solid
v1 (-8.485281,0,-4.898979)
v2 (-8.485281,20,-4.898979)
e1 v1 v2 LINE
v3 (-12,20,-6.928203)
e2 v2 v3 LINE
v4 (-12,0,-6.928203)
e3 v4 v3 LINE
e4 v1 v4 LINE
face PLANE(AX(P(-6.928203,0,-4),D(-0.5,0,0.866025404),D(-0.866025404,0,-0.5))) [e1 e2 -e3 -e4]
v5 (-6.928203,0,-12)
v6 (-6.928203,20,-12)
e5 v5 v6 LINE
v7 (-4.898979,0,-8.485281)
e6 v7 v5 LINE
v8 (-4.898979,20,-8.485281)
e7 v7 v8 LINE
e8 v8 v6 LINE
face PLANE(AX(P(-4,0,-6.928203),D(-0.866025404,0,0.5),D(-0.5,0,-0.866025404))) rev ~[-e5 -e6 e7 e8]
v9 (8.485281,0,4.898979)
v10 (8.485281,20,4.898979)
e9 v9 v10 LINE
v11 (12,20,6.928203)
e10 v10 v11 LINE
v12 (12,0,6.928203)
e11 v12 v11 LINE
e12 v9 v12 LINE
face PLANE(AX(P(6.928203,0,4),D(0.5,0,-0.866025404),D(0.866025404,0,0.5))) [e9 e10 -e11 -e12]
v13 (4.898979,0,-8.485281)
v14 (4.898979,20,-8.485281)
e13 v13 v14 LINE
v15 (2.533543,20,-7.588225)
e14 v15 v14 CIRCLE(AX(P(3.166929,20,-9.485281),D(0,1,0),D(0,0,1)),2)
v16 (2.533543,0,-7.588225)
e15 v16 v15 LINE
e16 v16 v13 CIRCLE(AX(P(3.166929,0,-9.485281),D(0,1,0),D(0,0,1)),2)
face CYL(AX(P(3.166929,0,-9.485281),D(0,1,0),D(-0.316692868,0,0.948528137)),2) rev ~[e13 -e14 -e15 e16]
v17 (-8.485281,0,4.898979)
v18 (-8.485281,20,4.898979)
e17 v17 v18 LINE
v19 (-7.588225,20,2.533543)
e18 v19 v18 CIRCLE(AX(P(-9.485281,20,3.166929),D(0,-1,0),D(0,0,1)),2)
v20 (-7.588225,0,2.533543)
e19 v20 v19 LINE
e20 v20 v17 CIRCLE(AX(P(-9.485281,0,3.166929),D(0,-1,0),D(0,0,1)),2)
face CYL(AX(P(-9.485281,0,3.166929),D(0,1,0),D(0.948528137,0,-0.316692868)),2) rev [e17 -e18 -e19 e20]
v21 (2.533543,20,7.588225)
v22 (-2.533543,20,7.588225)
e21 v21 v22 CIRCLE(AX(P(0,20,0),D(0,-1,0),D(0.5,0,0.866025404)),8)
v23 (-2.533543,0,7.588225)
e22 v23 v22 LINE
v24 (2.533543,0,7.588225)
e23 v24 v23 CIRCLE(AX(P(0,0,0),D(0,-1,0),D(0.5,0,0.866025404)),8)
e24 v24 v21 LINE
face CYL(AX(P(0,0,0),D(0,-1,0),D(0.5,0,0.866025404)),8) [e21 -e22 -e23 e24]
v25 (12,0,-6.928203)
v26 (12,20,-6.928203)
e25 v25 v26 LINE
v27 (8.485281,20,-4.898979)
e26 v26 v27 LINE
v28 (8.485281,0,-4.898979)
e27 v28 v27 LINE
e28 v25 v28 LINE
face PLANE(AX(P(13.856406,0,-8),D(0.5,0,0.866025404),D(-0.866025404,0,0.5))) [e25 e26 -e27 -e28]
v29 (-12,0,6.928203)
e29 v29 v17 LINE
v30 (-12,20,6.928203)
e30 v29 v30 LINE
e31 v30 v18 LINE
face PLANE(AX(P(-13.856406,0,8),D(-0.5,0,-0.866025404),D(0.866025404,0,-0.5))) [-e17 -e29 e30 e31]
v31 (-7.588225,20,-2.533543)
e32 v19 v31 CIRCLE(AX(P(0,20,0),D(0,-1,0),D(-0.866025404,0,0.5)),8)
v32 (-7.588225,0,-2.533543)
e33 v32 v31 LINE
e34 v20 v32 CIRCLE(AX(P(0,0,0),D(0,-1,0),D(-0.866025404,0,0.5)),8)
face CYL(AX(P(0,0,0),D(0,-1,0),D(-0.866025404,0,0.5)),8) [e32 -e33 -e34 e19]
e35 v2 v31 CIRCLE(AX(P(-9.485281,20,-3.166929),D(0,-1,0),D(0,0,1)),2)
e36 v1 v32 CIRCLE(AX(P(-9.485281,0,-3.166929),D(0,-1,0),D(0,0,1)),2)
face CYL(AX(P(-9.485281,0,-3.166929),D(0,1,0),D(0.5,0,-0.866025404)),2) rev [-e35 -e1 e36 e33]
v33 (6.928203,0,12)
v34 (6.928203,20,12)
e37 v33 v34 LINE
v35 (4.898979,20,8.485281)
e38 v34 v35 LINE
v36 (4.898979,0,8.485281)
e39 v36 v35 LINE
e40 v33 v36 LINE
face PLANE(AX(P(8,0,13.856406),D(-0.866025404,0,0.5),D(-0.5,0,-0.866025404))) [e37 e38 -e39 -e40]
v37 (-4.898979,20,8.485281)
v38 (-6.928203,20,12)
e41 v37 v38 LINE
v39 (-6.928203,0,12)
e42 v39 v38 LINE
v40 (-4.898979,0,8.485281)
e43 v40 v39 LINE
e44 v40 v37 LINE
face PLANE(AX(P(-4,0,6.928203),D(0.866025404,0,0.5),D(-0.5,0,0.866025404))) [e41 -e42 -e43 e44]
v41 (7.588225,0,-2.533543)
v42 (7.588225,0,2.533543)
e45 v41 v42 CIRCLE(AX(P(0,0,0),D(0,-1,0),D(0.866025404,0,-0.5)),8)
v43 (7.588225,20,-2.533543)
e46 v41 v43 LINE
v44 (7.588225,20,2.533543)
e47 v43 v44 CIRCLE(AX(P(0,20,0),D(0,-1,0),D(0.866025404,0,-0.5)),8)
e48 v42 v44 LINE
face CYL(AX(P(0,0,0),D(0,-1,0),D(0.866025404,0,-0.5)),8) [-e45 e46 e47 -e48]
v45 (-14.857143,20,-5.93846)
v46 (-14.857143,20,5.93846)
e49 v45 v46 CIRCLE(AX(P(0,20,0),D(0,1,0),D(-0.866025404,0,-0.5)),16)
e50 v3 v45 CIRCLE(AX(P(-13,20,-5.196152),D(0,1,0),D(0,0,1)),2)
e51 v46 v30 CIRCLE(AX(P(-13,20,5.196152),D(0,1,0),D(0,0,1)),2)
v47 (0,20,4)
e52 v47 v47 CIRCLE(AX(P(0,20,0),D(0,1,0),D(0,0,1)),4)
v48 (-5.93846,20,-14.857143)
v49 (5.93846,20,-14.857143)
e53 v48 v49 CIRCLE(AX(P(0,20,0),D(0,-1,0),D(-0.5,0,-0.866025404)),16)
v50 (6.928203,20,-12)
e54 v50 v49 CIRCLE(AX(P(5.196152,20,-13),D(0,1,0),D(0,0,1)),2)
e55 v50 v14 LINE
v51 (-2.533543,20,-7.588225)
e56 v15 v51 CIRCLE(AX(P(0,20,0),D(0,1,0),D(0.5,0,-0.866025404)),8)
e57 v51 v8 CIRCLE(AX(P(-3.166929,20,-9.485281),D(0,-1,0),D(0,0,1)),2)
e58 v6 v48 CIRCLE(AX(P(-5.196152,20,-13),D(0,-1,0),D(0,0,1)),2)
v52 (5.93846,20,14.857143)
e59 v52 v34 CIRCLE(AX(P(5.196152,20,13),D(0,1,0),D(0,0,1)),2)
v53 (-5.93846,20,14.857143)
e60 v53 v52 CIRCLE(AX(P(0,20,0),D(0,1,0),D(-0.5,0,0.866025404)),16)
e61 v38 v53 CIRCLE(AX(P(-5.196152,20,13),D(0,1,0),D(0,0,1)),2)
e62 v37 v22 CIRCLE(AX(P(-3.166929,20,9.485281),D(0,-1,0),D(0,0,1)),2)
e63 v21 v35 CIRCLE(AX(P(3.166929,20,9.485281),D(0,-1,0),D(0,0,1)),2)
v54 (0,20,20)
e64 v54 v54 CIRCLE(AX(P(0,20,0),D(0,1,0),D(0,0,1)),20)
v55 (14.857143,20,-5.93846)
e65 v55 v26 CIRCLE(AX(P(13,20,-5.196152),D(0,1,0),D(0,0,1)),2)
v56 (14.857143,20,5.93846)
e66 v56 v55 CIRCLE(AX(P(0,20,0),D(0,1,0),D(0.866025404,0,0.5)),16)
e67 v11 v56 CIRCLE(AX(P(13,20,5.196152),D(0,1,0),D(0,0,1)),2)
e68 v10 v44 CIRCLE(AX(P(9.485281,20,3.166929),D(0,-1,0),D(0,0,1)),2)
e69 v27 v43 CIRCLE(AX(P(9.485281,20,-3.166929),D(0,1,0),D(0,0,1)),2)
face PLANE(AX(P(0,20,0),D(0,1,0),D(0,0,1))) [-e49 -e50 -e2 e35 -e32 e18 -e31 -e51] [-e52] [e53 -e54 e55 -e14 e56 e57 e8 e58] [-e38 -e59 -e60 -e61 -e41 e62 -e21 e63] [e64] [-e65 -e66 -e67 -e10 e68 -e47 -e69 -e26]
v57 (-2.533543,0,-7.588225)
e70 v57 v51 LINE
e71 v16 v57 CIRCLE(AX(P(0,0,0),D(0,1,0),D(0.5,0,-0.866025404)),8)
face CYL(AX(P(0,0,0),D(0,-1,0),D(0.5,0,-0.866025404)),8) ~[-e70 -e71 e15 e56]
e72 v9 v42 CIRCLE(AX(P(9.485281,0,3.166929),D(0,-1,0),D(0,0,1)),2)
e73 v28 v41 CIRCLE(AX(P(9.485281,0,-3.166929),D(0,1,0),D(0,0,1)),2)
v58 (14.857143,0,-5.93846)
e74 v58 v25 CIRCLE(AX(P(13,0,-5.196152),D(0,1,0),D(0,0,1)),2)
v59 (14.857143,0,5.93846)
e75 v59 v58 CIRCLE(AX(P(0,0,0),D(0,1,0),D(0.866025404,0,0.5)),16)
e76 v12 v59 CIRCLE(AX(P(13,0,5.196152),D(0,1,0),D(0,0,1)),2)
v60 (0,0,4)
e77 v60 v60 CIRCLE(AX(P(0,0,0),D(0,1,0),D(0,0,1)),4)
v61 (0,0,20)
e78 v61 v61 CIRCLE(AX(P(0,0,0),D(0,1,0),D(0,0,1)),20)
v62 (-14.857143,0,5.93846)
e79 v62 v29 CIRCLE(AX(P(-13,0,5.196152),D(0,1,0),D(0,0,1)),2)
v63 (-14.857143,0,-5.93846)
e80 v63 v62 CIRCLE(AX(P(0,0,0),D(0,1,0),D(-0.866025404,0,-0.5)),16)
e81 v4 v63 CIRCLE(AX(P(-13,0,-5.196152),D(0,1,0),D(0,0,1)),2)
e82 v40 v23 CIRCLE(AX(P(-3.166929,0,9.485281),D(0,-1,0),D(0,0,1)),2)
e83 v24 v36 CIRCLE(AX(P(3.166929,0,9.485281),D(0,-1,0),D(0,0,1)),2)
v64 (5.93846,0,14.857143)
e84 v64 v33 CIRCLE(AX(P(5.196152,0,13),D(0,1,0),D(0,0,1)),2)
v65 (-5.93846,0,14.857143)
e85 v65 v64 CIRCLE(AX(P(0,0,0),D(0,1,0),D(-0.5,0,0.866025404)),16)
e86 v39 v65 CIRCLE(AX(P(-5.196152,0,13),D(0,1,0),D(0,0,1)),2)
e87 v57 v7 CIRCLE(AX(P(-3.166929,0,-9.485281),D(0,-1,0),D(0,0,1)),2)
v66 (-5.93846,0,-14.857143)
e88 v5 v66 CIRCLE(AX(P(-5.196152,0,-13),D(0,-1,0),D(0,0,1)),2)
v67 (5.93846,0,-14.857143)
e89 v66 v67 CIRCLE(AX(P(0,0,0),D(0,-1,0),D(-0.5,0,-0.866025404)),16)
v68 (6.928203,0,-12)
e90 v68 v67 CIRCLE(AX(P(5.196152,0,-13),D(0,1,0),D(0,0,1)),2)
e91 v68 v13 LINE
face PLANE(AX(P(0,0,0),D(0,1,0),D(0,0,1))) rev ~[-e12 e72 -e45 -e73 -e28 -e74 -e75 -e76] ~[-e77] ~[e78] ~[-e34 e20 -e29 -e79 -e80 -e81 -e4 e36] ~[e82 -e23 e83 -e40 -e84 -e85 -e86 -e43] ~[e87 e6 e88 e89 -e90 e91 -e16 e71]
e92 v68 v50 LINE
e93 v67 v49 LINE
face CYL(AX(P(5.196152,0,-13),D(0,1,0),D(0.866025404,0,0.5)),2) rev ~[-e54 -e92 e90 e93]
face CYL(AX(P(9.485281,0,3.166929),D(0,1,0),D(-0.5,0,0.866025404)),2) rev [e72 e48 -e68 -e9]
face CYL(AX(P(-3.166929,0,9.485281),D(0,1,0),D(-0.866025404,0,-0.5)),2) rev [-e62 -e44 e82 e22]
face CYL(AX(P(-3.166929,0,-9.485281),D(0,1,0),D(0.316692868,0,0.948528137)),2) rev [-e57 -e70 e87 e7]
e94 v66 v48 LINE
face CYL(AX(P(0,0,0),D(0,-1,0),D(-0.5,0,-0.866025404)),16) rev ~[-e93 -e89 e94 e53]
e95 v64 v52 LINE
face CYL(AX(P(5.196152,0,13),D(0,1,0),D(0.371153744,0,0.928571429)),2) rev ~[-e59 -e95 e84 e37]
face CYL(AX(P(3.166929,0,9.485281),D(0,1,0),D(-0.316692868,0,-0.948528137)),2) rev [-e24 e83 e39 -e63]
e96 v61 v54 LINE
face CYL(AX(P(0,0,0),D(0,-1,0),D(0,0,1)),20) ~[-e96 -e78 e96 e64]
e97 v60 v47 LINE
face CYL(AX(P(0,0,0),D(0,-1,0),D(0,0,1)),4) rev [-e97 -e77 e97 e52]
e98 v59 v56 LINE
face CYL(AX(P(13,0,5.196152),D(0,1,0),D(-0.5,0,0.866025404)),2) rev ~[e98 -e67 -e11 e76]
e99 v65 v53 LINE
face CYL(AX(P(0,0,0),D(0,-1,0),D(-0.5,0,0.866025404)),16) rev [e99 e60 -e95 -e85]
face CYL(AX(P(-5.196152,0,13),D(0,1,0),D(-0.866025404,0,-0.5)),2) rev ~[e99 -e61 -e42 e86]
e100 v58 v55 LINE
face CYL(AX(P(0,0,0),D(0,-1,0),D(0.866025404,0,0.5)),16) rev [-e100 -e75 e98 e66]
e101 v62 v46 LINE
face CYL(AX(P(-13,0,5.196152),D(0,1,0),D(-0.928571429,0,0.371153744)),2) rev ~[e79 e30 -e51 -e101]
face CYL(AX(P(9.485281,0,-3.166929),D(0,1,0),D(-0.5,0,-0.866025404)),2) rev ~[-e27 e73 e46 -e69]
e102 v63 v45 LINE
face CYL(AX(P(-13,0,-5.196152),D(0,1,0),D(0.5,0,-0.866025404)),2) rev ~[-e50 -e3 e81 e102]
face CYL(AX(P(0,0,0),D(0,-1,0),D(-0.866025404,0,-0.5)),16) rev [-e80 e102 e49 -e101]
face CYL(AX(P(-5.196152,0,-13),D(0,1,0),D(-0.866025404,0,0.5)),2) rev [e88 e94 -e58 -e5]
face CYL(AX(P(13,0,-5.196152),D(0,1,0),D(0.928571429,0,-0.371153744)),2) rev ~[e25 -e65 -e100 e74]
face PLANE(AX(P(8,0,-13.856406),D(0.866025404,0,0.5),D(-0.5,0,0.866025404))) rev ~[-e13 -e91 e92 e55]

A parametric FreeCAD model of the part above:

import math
import FreeCAD as App
import Part
import Sketcher

V = App.Vector
Q = App.Units.Quantity


def edges_at(feature, points):
    """Names of the edges that pass closest to the given points."""
    edges = feature.Shape.Edges
    near = lambda p: min(range(len(edges)), key=lambda i: edges[i].distToShape(Part.Vertex(*p))[0])
    return sorted({f"Edge{near(p) + 1}" for p in points})

doc = App.newDocument("Part")
body = doc.addObject("PartDesign::Body", "Body")

# Sketch on XZ plane
sketch1 = doc.addObject("Sketcher::SketchObject", "Sketch")
body.addObject(sketch1)
sketch1.AttachmentSupport = (doc.XZ_Plane, [""])
sketch1.MapMode = "FlatFace"
sketch1.addGeometry([
    Part.Circle(V(0, 0, 0), V(0, 0, 1), 20),  # 0
    Part.LineSegment(V(-13.9, -8, 0), V(-6.9, -4, 0)),  # 1
    Part.ArcOfCircle(Part.Circle(V(0, 0, 0), V(0, 0, 1), 8), math.radians(150), math.radians(210)),  # 2
    Part.LineSegment(V(-6.9, 4, 0), V(-13.9, 8, 0)),  # 3
    Part.ArcOfCircle(Part.Circle(V(0, 0, 0), V(0, 0, 1), 16), math.radians(150), math.radians(210)),  # 4
    Part.ArcOfCircle(Part.Circle(V(0, 0, 0), V(0, 0, 1), 8), math.radians(-120), math.radians(-60)),  # 5
    Part.LineSegment(V(-4, -6.9, 0), V(-8, -13.9, 0)),  # 6
    Part.ArcOfCircle(Part.Circle(V(0, 0, 0), V(0, 0, 1), 16), math.radians(-120), math.radians(-60)),  # 7
    Part.LineSegment(V(8, -13.9, 0), V(4, -6.9, 0)),  # 8
    Part.LineSegment(V(13.9, 8, 0), V(6.9, 4, 0)),  # 9
    Part.ArcOfCircle(Part.Circle(V(0, 0, 0), V(0, 0, 1), 8), math.radians(-30), math.radians(30)),  # 10
    Part.LineSegment(V(6.9, -4, 0), V(13.9, -8, 0)),  # 11
    Part.ArcOfCircle(Part.Circle(V(0, 0, 0), V(0, 0, 1), 16), math.radians(-30), math.radians(30)),  # 12
    Part.Circle(V(0, 0, 0), V(0, 0, 1), 4),  # 13
    Part.LineSegment(V(-8, 13.9, 0), V(-4, 6.9, 0)),  # 14
    Part.ArcOfCircle(Part.Circle(V(0, 0, 0), V(0, 0, 1), 8), math.radians(60), math.radians(120)),  # 15
    Part.LineSegment(V(4, 6.9, 0), V(8, 13.9, 0)),  # 16
    Part.ArcOfCircle(Part.Circle(V(0, 0, 0), V(0, 0, 1), 16), math.radians(60), math.radians(120)),  # 17
], False)
sketch1.addConstraint([
    Sketcher.Constraint("Coincident", 1, 2, 2, 2),
    Sketcher.Constraint("Coincident", 2, 1, 3, 1),
    Sketcher.Constraint("Coincident", 3, 2, 4, 1),
    Sketcher.Constraint("Coincident", 4, 2, 1, 1),
    Sketcher.Constraint("Coincident", 5, 1, 6, 1),
    Sketcher.Constraint("Coincident", 6, 2, 7, 1),
    Sketcher.Constraint("Coincident", 7, 2, 8, 1),
    Sketcher.Constraint("Coincident", 8, 2, 5, 2),
    Sketcher.Constraint("Coincident", 9, 2, 10, 2),
    Sketcher.Constraint("Coincident", 10, 1, 11, 1),
    Sketcher.Constraint("Coincident", 11, 2, 12, 1),
    Sketcher.Constraint("Coincident", 12, 2, 9, 1),
    Sketcher.Constraint("Coincident", 14, 2, 15, 2),
    Sketcher.Constraint("Coincident", 15, 1, 16, 1),
    Sketcher.Constraint("Coincident", 16, 2, 17, 1),
    Sketcher.Constraint("Coincident", 17, 2, 14, 1),
    Sketcher.Constraint("Coincident", 0, 3, -1, 1),
    Sketcher.Constraint("Coincident", 2, 3, -1, 1),
    Sketcher.Constraint("Coincident", 4, 3, -1, 1),
    Sketcher.Constraint("Coincident", 5, 3, -1, 1),
    Sketcher.Constraint("Coincident", 7, 3, -1, 1),
    Sketcher.Constraint("Coincident", 10, 3, -1, 1),
    Sketcher.Constraint("Coincident", 12, 3, -1, 1),
    Sketcher.Constraint("Coincident", 13, 3, -1, 1),
    Sketcher.Constraint("Coincident", 15, 3, -1, 1),
    Sketcher.Constraint("Coincident", 17, 3, -1, 1),
    Sketcher.Constraint("Equal", 2, 5),
    Sketcher.Constraint("Equal", 4, 7),
    Sketcher.Constraint("Equal", 5, 10),
    Sketcher.Constraint("Equal", 7, 12),
    Sketcher.Constraint("Equal", 10, 15),
    Sketcher.Constraint("Equal", 12, 17),
    Sketcher.Constraint("Perpendicular", 3, 6),
    Sketcher.Constraint("Perpendicular", 1, 8),
    Sketcher.Constraint("Perpendicular", 8, 9),
    Sketcher.Constraint("Perpendicular", 6, 11),
    Sketcher.Constraint("Perpendicular", 9, 14),
    Sketcher.Constraint("Perpendicular", 11, 16),
    Sketcher.Constraint("Horizontal", 6, 2, 7, 2),
    Sketcher.Constraint("Horizontal", 5, 1, 8, 2),
    Sketcher.Constraint("Horizontal", 2, 1, 9, 2),
    Sketcher.Constraint("Horizontal", 1, 2, 10, 1),
    Sketcher.Constraint("Horizontal", 14, 2, 15, 1),
    Sketcher.Constraint("Vertical", 1, 2, 2, 1),
    Sketcher.Constraint("Vertical", 5, 1, 14, 2),
    Sketcher.Constraint("Diameter", 0, Q("40 mm")),
    Sketcher.Constraint("Diameter", 13, Q("8 mm")),
    Sketcher.Constraint("Radius", 2, Q("8 mm")),
    Sketcher.Constraint("Radius", 4, Q("16 mm")),
    Sketcher.Constraint("Angle", 1, Q("30 deg")),
    Sketcher.Constraint("DistanceY", 1, 2, -1, 1, Q("4 mm")),
    Sketcher.Constraint("DistanceX", 5, 1, -1, 1, Q("4 mm")),
])
pad1 = doc.addObject("PartDesign::Pad", "Pad")
body.addObject(pad1)
pad1.Profile = sketch1
pad1.Length = 20
pad1.Reversed = True
doc.recompute()

fillet = doc.addObject("PartDesign::Fillet", "Fillet")
body.addObject(fillet)
fillet.Base = (pad1, edges_at(pad1, [
    (8, 10, -13.856),
    (-8, 10, -13.856),
    (-4, 10, -6.928),
    (4, 10, -6.928),
    (13.856, 10, 8),
    (13.856, 10, -8),
    (6.928, 10, -4),
    (6.928, 10, 4),
    (-8, 10, 13.856),
    (8, 10, 13.856),
    (4, 10, 6.928),
    (-4, 10, 6.928),
    (-13.856, 10, -8),
    (-13.856, 10, 8),
    (-6.928, 10, 4),
    (-6.928, 10, -4),
]))
fillet.Radius = 2

doc.recompute()
